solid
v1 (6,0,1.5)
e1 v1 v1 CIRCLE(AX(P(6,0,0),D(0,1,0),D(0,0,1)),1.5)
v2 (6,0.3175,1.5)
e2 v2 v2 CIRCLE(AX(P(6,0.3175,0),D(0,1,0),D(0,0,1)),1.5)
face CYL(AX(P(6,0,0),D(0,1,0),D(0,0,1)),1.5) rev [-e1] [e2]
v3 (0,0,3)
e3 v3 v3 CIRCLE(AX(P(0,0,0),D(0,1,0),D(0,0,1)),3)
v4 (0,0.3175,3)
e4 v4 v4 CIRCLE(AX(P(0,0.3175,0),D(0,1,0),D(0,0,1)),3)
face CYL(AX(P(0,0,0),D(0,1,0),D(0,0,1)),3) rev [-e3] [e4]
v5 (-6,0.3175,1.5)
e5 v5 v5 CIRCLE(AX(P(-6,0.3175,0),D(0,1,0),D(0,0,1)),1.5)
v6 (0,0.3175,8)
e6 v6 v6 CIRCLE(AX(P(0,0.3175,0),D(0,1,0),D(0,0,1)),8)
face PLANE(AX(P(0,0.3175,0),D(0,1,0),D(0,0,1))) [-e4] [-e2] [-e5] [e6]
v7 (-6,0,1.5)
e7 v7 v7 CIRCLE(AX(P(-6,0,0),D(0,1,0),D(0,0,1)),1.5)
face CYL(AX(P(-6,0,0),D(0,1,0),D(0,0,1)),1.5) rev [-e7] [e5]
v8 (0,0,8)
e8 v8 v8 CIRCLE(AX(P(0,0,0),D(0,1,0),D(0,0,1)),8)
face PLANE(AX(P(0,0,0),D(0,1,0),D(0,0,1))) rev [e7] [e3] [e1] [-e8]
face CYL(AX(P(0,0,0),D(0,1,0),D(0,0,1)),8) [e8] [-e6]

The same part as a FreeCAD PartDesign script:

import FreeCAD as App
import Part
import Sketcher

doc = App.newDocument("Part")
body = doc.addObject("PartDesign::Body", "Body")

# Sketch on XZ plane
sketch1 = body.newObject("Sketcher::SketchObject", "Sketch")
sketch1.AttachmentSupport = (doc.getObject("XZ_Plane"), [""])
sketch1.MapMode = "FlatFace"
sketch1.addGeometry(Part.Circle(App.Vector(0, 0, 0), App.Vector(0, 0, 1), 7), False)
sketch1.addConstraint([
    Sketcher.Constraint("Coincident", 0, 3, -1, 1),
    Sketcher.Constraint("Diameter", 0, 14.0),
])
pad1 = body.newObject("PartDesign::Pad", "Pad")
pad1.Profile = sketch1
pad1.Length = 0.3175
pad1.Reversed = True

# Sketch on XZ plane
sketch2 = body.newObject("Sketcher::SketchObject", "Sketch001")
sketch2.AttachmentSupport = (doc.getObject("XZ_Plane"), [""])
sketch2.MapMode = "FlatFace"
sketch2.AttachmentOffset = App.Placement(App.Vector(0, 0, -0.3175), App.Rotation())
sketch2.addGeometry(Part.Circle(App.Vector(0, 0, 0), App.Vector(0, 0, 1), 8), False)
sketch2.addConstraint([
    Sketcher.Constraint("Coincident", 0, 3, -1, 1),
    Sketcher.Constraint("Diameter", 0, 16.0),
])
pad2 = body.newObject("PartDesign::Pad", "Pad001")
pad2.Profile = sketch2
pad2.Length = 0.3175

# Sketch on XZ plane
sketch3 = body.newObject("Sketcher::SketchObject", "Sketch002")
sketch3.AttachmentSupport = (doc.getObject("XZ_Plane"), [""])
sketch3.MapMode = "FlatFace"
sketch3.AttachmentOffset = App.Placement(App.Vector(0, 0, -0.3175), App.Rotation())
sketch3.addGeometry(Part.Circle(App.Vector(6, 0, 0), App.Vector(0, 0, 1), 1.5), False)
sketch3.addConstraint([
    Sketcher.Constraint("PointOnObject", 0, 3, -1),
    Sketcher.Constraint("Diameter", 0, 3.0),
    Sketcher.Constraint("DistanceX", -1, 1, 0, 3, 6.0),
])
pocket1 = body.newObject("PartDesign::Pocket", "Pocket")
pocket1.Profile = sketch3
pocket1.Length = 0.3175
pocket1.Reversed = True

# Sketch on XZ plane
sketch4 = body.newObject("Sketcher::SketchObject", "Sketch003")
sketch4.AttachmentSupport = (doc.getObject("XZ_Plane"), [""])
sketch4.MapMode = "FlatFace"
sketch4.AttachmentOffset = App.Placement(App.Vector(0, 0, -0.3175), App.Rotation())
sketch4.addGeometry(Part.Circle(App.Vector(-6, 0, 0), App.Vector(0, 0, 1), 1.5), False)
sketch4.addConstraint([
    Sketcher.Constraint("PointOnObject", 0, 3, -1),
    Sketcher.Constraint("Diameter", 0, 3.0),
    Sketcher.Constraint("DistanceX", 0, 3, -1, 1, 6.0),
])
pocket2 = body.newObject("PartDesign::Pocket", "Pocket001")
pocket2.Profile = sketch4
pocket2.Length = 0.3175
pocket2.Reversed = True

# Sketch on XZ plane
sketch5 = body.newObject("Sketcher::SketchObject", "Sketch004")
sketch5.AttachmentSupport = (doc.getObject("XZ_Plane"), [""])
sketch5.MapMode = "FlatFace"
sketch5.AttachmentOffset = App.Placement(App.Vector(0, 0, -0.3175), App.Rotation())
sketch5.addGeometry(Part.Circle(App.Vector(0, 0, 0), App.Vector(0, 0, 1), 3), False)
sketch5.addConstraint([
    Sketcher.Constraint("Coincident", 0, 3, -1, 1),
    Sketcher.Constraint("Diameter", 0, 6.0),
])
pocket3 = body.newObject("PartDesign::Pocket", "Pocket002")
pocket3.Profile = sketch5
pocket3.Length = 0.3175
pocket3.Reversed = True

doc.recompute()
